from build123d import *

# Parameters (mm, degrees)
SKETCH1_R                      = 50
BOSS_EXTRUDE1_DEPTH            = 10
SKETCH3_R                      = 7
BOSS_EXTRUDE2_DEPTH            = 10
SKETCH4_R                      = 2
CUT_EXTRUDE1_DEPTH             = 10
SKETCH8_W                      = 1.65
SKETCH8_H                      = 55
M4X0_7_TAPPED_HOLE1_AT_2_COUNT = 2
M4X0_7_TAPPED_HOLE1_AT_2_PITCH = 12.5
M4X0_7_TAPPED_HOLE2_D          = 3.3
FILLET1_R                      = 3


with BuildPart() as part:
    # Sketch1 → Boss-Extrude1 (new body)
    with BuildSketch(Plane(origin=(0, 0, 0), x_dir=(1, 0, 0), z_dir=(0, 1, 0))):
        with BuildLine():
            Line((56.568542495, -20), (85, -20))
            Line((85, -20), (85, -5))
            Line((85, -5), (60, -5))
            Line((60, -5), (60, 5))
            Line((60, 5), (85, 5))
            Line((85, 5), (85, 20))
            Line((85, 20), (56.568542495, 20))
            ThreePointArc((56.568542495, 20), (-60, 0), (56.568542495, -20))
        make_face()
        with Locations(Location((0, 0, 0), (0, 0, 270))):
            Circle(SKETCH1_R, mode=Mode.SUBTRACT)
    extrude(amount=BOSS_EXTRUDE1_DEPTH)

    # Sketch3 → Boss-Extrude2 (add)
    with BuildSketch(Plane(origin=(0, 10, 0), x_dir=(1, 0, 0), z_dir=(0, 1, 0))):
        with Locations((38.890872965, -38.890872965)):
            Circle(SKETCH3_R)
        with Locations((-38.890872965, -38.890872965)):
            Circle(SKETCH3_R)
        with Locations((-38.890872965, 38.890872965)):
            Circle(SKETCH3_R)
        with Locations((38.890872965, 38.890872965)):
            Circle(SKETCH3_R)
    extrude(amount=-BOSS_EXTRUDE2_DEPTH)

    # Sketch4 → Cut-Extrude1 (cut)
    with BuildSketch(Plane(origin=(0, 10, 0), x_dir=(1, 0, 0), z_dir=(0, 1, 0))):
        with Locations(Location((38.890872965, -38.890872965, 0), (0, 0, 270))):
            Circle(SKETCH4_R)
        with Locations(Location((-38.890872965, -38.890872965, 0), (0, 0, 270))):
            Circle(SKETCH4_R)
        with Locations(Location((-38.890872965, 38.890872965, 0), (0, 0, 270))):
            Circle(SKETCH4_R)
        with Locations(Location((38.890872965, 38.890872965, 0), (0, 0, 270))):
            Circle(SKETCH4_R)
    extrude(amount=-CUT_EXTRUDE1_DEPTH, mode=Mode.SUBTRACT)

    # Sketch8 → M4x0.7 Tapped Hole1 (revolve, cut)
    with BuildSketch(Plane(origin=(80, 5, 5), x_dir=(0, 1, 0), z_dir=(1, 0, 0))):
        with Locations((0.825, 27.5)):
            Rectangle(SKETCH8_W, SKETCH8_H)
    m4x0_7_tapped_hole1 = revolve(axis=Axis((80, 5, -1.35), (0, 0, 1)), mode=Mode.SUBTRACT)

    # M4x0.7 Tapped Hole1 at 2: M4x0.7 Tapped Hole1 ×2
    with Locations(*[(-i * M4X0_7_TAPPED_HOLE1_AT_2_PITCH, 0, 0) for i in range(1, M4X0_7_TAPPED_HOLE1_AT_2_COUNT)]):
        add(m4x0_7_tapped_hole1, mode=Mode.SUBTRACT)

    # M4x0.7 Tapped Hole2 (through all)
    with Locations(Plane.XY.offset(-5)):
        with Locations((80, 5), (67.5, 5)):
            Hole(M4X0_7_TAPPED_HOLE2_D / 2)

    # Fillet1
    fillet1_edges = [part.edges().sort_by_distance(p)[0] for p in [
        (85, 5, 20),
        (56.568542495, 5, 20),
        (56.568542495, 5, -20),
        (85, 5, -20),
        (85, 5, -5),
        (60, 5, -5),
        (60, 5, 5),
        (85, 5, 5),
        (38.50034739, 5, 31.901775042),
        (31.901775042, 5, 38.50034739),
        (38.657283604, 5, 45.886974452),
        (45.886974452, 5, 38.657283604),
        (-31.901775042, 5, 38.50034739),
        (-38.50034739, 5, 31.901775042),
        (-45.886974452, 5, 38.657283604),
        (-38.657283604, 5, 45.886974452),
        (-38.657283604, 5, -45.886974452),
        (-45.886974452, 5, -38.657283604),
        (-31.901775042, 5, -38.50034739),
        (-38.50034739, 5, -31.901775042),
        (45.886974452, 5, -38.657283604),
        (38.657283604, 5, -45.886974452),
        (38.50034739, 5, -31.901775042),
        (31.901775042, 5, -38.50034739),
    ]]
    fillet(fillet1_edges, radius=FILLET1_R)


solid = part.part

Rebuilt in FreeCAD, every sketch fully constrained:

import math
import FreeCAD as App
import Part
import Sketcher


def edges_at(feature, points):
    """Names of the edges that pass closest to the given points."""
    edges = feature.Shape.Edges
    near = lambda p: min(range(len(edges)), key=lambda i: edges[i].distToShape(Part.Vertex(*p))[0])
    return sorted({f"Edge{near(p) + 1}" for p in points})


def add_polygon(sketch, points):
    """Adds a closed chain of lines whose ends are joined by coincident constraints."""
    first, n = sketch.GeometryCount, len(points)
    for a, b in zip(points, points[1:] + points[:1]):
        sketch.addGeometry(Part.LineSegment(App.Vector(*a, 0), App.Vector(*b, 0)), False)
    for i in range(n):
        sketch.addConstraint(Sketcher.Constraint("Coincident", first + i, 2, first + (i + 1) % n, 1))

doc = App.newDocument("Part")
body = doc.addObject("PartDesign::Body", "Body")

# Sketch on XZ plane
sketch1 = body.newObject("Sketcher::SketchObject", "Sketch")
sketch1.AttachmentSupport = (doc.getObject("XZ_Plane"), [""])
sketch1.MapMode = "FlatFace"
sketch1.addGeometry([
    Part.LineSegment(App.Vector(57, 20, 0), App.Vector(85, 20, 0)),  # 0
    Part.LineSegment(App.Vector(85, 20, 0), App.Vector(85, 5, 0)),  # 1
    Part.LineSegment(App.Vector(85, 5, 0), App.Vector(60, 5, 0)),  # 2
    Part.LineSegment(App.Vector(60, 5, 0), App.Vector(60, -5, 0)),  # 3
    Part.LineSegment(App.Vector(60, -5, 0), App.Vector(85, -5, 0)),  # 4
    Part.LineSegment(App.Vector(85, -5, 0), App.Vector(85, -20, 0)),  # 5
    Part.LineSegment(App.Vector(85, -20, 0), App.Vector(57, -20, 0)),  # 6
    Part.ArcOfCircle(Part.Circle(App.Vector(0, 0, 0), App.Vector(0, 0, 1), 60), math.radians(19), math.radians(341)),  # 7
    Part.Circle(App.Vector(0, 0, 0), App.Vector(0, 0, 1), 50),  # 8
], False)
sketch1.addConstraint([
    Sketcher.Constraint("Coincident", 0, 2, 1, 1),
    Sketcher.Constraint("Coincident", 1, 2, 2, 1),
    Sketcher.Constraint("Coincident", 2, 2, 3, 1),
    Sketcher.Constraint("Coincident", 3, 2, 4, 1),
    Sketcher.Constraint("Coincident", 4, 2, 5, 1),
    Sketcher.Constraint("Coincident", 5, 2, 6, 1),
    Sketcher.Constraint("Coincident", 6, 2, 7, 2),
    Sketcher.Constraint("Coincident", 7, 1, 0, 1),
    Sketcher.Constraint("Horizontal", 0),
    Sketcher.Constraint("Vertical", 1),
    Sketcher.Constraint("Horizontal", 2),
    Sketcher.Constraint("Vertical", 3),
    Sketcher.Constraint("Horizontal", 4),
    Sketcher.Constraint("Vertical", 5),
    Sketcher.Constraint("Horizontal", 6),
    Sketcher.Constraint("Coincident", 7, 3, -1, 1),
    Sketcher.Constraint("Coincident", 8, 3, -1, 1),
    Sketcher.Constraint("Symmetric", 1, 2, 4, 2, -1),
    Sketcher.Constraint("Vertical", 6, 2, 7, 1),
    Sketcher.Constraint("Diameter", 8, 100.0),
    Sketcher.Constraint("Radius", 7, 60.0),
    Sketcher.Constraint("DistanceX", 2, 2, 2, 1, 25.0),
    Sketcher.Constraint("DistanceY", 1, 2, 1, 1, 15.0),
    Sketcher.Constraint("DistanceY", 3, 2, 3, 1, 10.0),
    Sketcher.Constraint("DistanceX", -1, 1, 0, 2, 85.0),
])
pad1 = body.newObject("PartDesign::Pad", "Pad")
pad1.Profile = sketch1
pad1.Length = 10
pad1.Reversed = True

# Sketch on XZ plane
sketch2 = body.newObject("Sketcher::SketchObject", "Sketch001")
sketch2.AttachmentSupport = (doc.getObject("XZ_Plane"), [""])
sketch2.MapMode = "FlatFace"
sketch2.AttachmentOffset = App.Placement(App.Vector(0, 0, -10), App.Rotation())
sketch2.addGeometry([
    Part.Circle(App.Vector(39, 39, 0), App.Vector(0, 0, 1), 7),
    Part.Circle(App.Vector(-39, 39, 0), App.Vector(0, 0, 1), 7),
    Part.Circle(App.Vector(-39, -39, 0), App.Vector(0, 0, 1), 7),
    Part.Circle(App.Vector(39, -39, 0), App.Vector(0, 0, 1), 7),
], False)
sketch2.addConstraint([
    Sketcher.Constraint("Equal", 0, 1),
    Sketcher.Constraint("Equal", 1, 2),
    Sketcher.Constraint("Equal", 2, 3),
    Sketcher.Constraint("Symmetric", 0, 3, 2, 3, -1, 1),
    Sketcher.Constraint("Symmetric", 1, 3, 3, 3, -1, 1),
    Sketcher.Constraint("Symmetric", 0, 3, 1, 3, -2),
    Sketcher.Constraint("Diameter", 0, 14.0),
    Sketcher.Constraint("DistanceX", -1, 1, 0, 3, 38.890873),
    Sketcher.Constraint("DistanceY", -1, 1, 0, 3, 38.890873),
])
pad2 = body.newObject("PartDesign::Pad", "Pad001")
pad2.Profile = sketch2
pad2.Length = 10

# Sketch on XZ plane
sketch3 = body.newObject("Sketcher::SketchObject", "Sketch002")
sketch3.AttachmentSupport = (doc.getObject("XZ_Plane"), [""])
sketch3.MapMode = "FlatFace"
sketch3.AttachmentOffset = App.Placement(App.Vector(0, 0, -10), App.Rotation())
sketch3.addGeometry([
    Part.Circle(App.Vector(38.9, 38.9, 0), App.Vector(0, 0, 1), 2),
    Part.Circle(App.Vector(-38.9, 38.9, 0), App.Vector(0, 0, 1), 2),
    Part.Circle(App.Vector(-38.9, -38.9, 0), App.Vector(0, 0, 1), 2),
    Part.Circle(App.Vector(38.9, -38.9, 0), App.Vector(0, 0, 1), 2),
], False)
sketch3.addConstraint([
    Sketcher.Constraint("Equal", 0, 1),
    Sketcher.Constraint("Equal", 1, 2),
    Sketcher.Constraint("Equal", 2, 3),
    Sketcher.Constraint("Symmetric", 0, 3, 2, 3, -1, 1),
    Sketcher.Constraint("Symmetric", 1, 3, 3, 3, -1, 1),
    Sketcher.Constraint("Symmetric", 0, 3, 1, 3, -2),
    Sketcher.Constraint("Diameter", 0, 4.0),
    Sketcher.Constraint("DistanceX", -1, 1, 0, 3, 38.890873),
    Sketcher.Constraint("DistanceY", -1, 1, 0, 3, 38.890873),
])
pocket1 = body.newObject("PartDesign::Pocket", "Pocket")
pocket1.Profile = sketch3
pocket1.Length = 10
pocket1.Reversed = True

# Sketch on YZ plane
sketch4 = body.newObject("Sketcher::SketchObject", "Sketch003")
sketch4.AttachmentSupport = (doc.getObject("YZ_Plane"), [""])
sketch4.MapMode = "FlatFace"
sketch4.AttachmentOffset = App.Placement(App.Vector(0, 0, 80), App.Rotation())
add_polygon(sketch4, [(5, 60), (5, 5), (6.7, 5), (6.7, 60)])  # lines 0-3
sketch4.addGeometry(Part.LineSegment(App.Vector(5, 5, 0), App.Vector(5, 60, 0)), True)  # axis
sketch4.addConstraint([
    Sketcher.Constraint("Vertical", 0),
    Sketcher.Constraint("Horizontal", 1),
    Sketcher.Constraint("Vertical", 2),
    Sketcher.Constraint("Horizontal", 3),
    Sketcher.Constraint("Vertical", 4),
    Sketcher.Constraint("Coincident", 4, 1, 0, 2),
    Sketcher.Constraint("Horizontal", 2, 2, 4, 2),
    Sketcher.Constraint("DistanceY", 0, 2, 0, 1, 55.0),
    Sketcher.Constraint("DistanceX", -1, 1, 0, 2, 5.0),
    Sketcher.Constraint("DistanceY", -1, 1, 0, 2, 5.0),
    Sketcher.Constraint("DistanceX", 1, 1, 1, 2, 1.65),
])
groove = body.newObject("PartDesign::Groove", "Groove")
groove.Profile = sketch4
groove.ReferenceAxis = (sketch4, ["Axis0"])
groove.Angle = 360
doc.recompute()

linearpattern = body.newObject("PartDesign::LinearPattern", "LinearPattern")
linearpattern.Originals = [groove]
linearpattern.Direction = (doc.getObject("X_Axis"), [""])
linearpattern.Mode = "offset"
linearpattern.Offset = 12.5
linearpattern.Occurrences = 2
linearpattern.Reversed = True
body.Tip = linearpattern

# Sketch on XY plane
sketch5 = body.newObject("Sketcher::SketchObject", "Sketch004")
sketch5.AttachmentSupport = (doc.getObject("XY_Plane"), [""])
sketch5.MapMode = "FlatFace"
sketch5.AttachmentOffset = App.Placement(App.Vector(0, 0, -5), App.Rotation())
sketch5.addGeometry([
    Part.Circle(App.Vector(80, 5, 0), App.Vector(0, 0, 1), 1.6),
    Part.Circle(App.Vector(67.5, 5, 0), App.Vector(0, 0, 1), 1.6),
], False)
sketch5.addConstraint([
    Sketcher.Constraint("Equal", 0, 1),
    Sketcher.Constraint("Horizontal", 0, 3, 1, 3),
    Sketcher.Constraint("Diameter", 0, 3.3),
    Sketcher.Constraint("DistanceX", -1, 1, 0, 3, 80.0),
    Sketcher.Constraint("DistanceY", -1, 1, 0, 3, 5.0),
    Sketcher.Constraint("DistanceX", -1, 1, 1, 3, 67.5),
])
doc.recompute()
hole = body.newObject("PartDesign::Hole", "Hole")
hole.Profile = sketch5
hole.ThreadType = "None"
hole.Diameter = 3.3
hole.DepthType = "ThroughAll"
doc.recompute()

fillet = body.newObject("PartDesign::Fillet", "Fillet")
fillet.Base = (hole, edges_at(hole, [
    (85, 5, 20),
    (56.569, 5, 20),
    (56.569, 5, -20),
    (85, 5, -20),
    (85, 5, -5),
    (60, 5, -5),
    (60, 5, 5),
    (85, 5, 5),
    (38.5, 5, 31.902),
    (31.902, 5, 38.5),
    (38.657, 5, 45.887),
    (45.887, 5, 38.657),
    (-31.902, 5, 38.5),
    (-38.5, 5, 31.902),
    (-45.887, 5, 38.657),
    (-38.657, 5, 45.887),
    (-38.657, 5, -45.887),
    (-45.887, 5, -38.657),
    (-31.902, 5, -38.5),
    (-38.5, 5, -31.902),
    (45.887, 5, -38.657),
    (38.657, 5, -45.887),
    (38.5, 5, -31.902),
    (31.902, 5, -38.5),
]))
fillet.Radius = 3

doc.recompute()
